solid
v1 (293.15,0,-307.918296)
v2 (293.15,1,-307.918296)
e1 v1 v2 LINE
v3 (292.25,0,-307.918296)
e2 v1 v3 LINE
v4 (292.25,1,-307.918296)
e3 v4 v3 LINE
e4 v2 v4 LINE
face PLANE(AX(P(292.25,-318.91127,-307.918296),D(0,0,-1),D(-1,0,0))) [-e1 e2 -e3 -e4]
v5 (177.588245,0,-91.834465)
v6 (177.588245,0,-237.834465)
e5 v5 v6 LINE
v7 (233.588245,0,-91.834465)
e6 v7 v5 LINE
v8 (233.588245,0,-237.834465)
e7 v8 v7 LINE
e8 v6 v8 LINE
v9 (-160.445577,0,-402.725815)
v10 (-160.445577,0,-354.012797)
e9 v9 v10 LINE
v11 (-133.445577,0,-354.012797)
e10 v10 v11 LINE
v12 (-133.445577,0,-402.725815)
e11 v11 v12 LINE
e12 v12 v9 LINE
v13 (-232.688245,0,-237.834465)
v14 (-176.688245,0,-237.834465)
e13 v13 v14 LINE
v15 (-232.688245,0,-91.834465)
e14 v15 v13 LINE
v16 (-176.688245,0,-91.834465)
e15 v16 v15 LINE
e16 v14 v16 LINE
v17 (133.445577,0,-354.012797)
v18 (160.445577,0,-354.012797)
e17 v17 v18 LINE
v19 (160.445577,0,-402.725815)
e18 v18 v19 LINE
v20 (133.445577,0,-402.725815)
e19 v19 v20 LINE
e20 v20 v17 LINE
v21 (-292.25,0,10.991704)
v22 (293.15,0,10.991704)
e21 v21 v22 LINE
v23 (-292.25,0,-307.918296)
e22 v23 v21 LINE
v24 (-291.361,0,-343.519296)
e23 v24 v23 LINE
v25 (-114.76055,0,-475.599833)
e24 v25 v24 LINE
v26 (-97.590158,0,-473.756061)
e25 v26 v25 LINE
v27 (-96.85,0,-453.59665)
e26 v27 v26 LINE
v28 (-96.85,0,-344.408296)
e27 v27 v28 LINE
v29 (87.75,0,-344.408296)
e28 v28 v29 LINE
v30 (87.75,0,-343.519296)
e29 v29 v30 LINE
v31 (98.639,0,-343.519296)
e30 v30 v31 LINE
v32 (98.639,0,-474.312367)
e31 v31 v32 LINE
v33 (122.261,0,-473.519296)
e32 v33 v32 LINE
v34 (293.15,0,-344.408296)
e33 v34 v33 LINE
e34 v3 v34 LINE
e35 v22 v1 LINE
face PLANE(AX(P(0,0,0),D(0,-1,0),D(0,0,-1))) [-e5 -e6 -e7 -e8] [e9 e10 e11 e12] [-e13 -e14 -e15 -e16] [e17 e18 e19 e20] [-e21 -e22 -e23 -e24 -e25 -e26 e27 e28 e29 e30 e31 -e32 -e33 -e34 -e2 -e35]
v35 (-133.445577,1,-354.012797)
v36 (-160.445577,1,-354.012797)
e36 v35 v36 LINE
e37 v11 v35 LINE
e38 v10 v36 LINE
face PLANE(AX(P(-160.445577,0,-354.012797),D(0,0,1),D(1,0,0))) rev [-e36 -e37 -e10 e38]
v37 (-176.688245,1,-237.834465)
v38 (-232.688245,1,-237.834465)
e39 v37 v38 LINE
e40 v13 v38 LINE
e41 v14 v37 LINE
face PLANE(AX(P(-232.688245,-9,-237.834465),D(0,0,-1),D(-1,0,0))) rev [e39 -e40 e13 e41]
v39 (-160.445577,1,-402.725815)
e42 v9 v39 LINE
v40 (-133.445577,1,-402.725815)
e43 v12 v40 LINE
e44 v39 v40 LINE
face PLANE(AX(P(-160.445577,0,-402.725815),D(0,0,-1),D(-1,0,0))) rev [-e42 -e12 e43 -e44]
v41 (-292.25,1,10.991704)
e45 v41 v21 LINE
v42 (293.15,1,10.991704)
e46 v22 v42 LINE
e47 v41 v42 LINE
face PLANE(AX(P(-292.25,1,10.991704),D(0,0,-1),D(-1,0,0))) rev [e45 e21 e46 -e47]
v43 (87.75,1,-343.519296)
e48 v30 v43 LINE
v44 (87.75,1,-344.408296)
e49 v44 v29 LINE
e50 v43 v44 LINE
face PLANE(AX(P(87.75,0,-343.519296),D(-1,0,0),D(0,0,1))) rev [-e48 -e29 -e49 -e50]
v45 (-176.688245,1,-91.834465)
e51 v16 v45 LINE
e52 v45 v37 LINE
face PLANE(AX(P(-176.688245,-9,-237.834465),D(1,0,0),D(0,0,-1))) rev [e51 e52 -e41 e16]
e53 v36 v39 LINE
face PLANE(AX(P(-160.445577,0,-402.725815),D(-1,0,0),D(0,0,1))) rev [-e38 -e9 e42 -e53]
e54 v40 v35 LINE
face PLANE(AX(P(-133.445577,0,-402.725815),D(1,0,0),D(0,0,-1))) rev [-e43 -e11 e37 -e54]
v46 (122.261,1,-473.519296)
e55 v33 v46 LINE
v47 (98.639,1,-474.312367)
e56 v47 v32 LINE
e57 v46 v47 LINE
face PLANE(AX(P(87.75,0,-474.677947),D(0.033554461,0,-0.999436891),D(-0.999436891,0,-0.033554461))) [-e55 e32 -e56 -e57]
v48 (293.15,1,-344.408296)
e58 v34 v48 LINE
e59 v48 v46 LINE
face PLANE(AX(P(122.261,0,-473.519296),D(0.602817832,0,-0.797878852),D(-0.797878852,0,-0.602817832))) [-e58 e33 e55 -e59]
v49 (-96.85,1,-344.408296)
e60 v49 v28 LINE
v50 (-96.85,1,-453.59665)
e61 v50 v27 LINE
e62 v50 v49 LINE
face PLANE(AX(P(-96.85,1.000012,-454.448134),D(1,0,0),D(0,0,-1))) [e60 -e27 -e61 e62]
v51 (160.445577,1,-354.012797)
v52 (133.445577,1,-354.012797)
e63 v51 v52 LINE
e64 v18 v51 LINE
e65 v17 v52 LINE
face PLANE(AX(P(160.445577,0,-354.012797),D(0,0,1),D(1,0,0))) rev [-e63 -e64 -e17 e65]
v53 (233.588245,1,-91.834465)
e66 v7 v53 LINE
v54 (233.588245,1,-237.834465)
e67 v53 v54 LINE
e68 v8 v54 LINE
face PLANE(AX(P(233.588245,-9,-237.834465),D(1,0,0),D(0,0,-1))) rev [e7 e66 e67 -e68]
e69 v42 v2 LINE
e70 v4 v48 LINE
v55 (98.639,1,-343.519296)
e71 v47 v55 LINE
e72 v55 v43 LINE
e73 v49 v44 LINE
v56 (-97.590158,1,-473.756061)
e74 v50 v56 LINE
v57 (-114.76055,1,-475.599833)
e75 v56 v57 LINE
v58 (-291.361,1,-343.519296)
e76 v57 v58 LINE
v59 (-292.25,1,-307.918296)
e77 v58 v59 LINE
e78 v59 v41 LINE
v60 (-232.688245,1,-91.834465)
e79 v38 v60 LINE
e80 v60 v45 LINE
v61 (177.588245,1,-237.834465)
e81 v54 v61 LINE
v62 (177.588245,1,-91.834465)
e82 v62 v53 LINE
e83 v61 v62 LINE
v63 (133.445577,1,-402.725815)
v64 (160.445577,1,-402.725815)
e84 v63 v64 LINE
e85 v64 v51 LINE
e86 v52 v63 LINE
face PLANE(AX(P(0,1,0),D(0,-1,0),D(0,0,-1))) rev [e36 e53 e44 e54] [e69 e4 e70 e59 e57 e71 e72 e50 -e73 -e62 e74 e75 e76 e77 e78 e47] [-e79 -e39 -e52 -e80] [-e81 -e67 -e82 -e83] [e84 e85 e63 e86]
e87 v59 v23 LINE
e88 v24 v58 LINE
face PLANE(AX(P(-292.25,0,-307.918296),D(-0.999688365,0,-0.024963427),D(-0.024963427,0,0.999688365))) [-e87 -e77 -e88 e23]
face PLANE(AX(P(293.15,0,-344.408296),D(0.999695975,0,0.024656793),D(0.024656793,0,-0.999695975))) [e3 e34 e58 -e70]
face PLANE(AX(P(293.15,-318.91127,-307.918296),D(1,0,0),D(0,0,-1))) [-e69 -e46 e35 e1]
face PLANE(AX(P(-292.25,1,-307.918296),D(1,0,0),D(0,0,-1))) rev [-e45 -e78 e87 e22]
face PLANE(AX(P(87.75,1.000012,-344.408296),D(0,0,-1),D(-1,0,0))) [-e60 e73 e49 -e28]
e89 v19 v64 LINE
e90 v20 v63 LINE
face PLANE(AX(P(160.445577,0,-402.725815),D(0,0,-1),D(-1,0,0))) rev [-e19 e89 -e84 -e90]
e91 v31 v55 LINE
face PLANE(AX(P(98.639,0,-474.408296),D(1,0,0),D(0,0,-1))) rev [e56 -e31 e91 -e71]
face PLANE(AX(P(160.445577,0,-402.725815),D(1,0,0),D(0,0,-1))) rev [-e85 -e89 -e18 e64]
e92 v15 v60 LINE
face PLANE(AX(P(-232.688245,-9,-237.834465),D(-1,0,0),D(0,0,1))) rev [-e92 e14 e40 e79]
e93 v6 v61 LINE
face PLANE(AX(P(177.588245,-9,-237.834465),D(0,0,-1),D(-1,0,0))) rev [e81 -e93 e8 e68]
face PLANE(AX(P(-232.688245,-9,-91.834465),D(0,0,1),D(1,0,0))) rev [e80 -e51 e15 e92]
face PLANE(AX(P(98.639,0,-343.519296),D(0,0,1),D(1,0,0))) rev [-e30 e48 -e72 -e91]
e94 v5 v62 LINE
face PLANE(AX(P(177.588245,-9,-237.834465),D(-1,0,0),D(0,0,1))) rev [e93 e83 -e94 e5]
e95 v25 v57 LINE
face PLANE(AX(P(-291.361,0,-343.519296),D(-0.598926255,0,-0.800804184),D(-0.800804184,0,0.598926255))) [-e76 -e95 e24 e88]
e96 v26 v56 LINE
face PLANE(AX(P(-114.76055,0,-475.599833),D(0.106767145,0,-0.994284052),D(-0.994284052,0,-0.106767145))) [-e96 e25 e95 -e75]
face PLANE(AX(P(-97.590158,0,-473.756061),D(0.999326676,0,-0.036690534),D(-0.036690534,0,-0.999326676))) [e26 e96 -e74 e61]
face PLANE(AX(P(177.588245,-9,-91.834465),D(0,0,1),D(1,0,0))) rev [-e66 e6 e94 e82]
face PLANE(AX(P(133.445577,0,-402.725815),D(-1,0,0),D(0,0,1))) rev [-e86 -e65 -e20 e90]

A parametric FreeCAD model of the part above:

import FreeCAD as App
import Part
import Sketcher

V = App.Vector
Q = App.Units.Quantity


def add_polygon(sketch, points):
    """Adds a closed chain of lines whose ends are joined by coincident constraints."""
    first, n = sketch.GeometryCount, len(points)
    for a, b in zip(points, points[1:] + points[:1]):
        sketch.addGeometry(Part.LineSegment(App.Vector(*a, 0), App.Vector(*b, 0)), False)
    for i in range(n):
        sketch.addConstraint(Sketcher.Constraint("Coincident", first + i, 2, first + (i + 1) % n, 1))

doc = App.newDocument("Part")
body = doc.addObject("PartDesign::Body", "Body")

# Sketch on XZ plane
sketch1 = body.newObject("Sketcher::SketchObject", "Sketch")
sketch1.AttachmentSupport = (doc.getObject("XZ_Plane"), [""])
sketch1.MapMode = "FlatFace"
add_polygon(sketch1, [(-292, -308), (-292, 11), (292, 11), (292, -308), (0, -531)])  # lines 0-4
sketch1.addConstraint([
    Sketcher.Constraint("Vertical", 0),
    Sketcher.Constraint("Horizontal", 1),
    Sketcher.Constraint("Vertical", 2),
    Sketcher.Constraint("Symmetric", 2, 2, 4, 2, -2),
    Sketcher.Constraint("PointOnObject", 3, 2, -2),
    Sketcher.Constraint("DistanceX", 1, 1, 1, 2, Q("584.5 mm")),
    Sketcher.Constraint("DistanceY", 0, 1, 0, 2, Q("318.91 mm")),
    Sketcher.Constraint("DistanceY", 3, 2, -1, 1, Q("531.403591 mm")),
    Sketcher.Constraint("Distance", 3, Q("367.907243 mm")),
])
pad1 = body.newObject("PartDesign::Pad", "Pad")
pad1.Profile = sketch1
pad1.Length = 1
pad1.Reversed = True

# Sketch on XZ plane
sketch2 = body.newObject("Sketcher::SketchObject", "Sketch001")
sketch2.AttachmentSupport = (doc.getObject("XZ_Plane"), [""])
sketch2.MapMode = "FlatFace"
sketch2.AttachmentOffset = App.Placement(V(0, 0, -1), App.Rotation())
add_polygon(sketch2, [(-233, -238), (-233, -92), (-177, -92), (-177, -238)])  # lines 0-3
add_polygon(sketch2, [(178, -238), (178, -92), (234, -92), (234, -238)])  # lines 4-7
sketch2.addConstraint([
    Sketcher.Constraint("Vertical", 0),
    Sketcher.Constraint("Horizontal", 1),
    Sketcher.Constraint("Vertical", 2),
    Sketcher.Constraint("Horizontal", 3),
    Sketcher.Constraint("Vertical", 4),
    Sketcher.Constraint("Horizontal", 5),
    Sketcher.Constraint("Vertical", 6),
    Sketcher.Constraint("Horizontal", 7),
    Sketcher.Constraint("Horizontal", 1, 2, 4, 2),
    Sketcher.Constraint("Horizontal", 3, 2, 6, 2),
    Sketcher.Constraint("Equal", 3, 5),
    Sketcher.Constraint("DistanceX", 1, 1, 1, 2, Q("56 mm")),
    Sketcher.Constraint("DistanceY", 0, 1, 0, 2, Q("146 mm")),
    Sketcher.Constraint("DistanceX", 1, 2, 4, 2, Q("354.27649 mm")),
    Sketcher.Constraint("DistanceX", 0, 2, -1, 1, Q("232.688245 mm")),
    Sketcher.Constraint("DistanceY", 0, 2, -1, 1, Q("91.834465 mm")),
])
pocket1 = body.newObject("PartDesign::Pocket", "Pocket")
pocket1.Profile = sketch2
pocket1.Length = 10
pocket1.Reversed = True

# Sketch on XZ plane
sketch3 = body.newObject("Sketcher::SketchObject", "Sketch002")
sketch3.AttachmentSupport = (doc.getObject("XZ_Plane"), [""])
sketch3.MapMode = "FlatFace"
sketch3.AttachmentOffset = App.Placement(V(0, 0, -1), App.Rotation())
add_polygon(sketch3, [(-183, -548), (-183, -474), (141, -474), (141, -548)])  # lines 0-3
sketch3.addConstraint([
    Sketcher.Constraint("Vertical", 0),
    Sketcher.Constraint("Horizontal", 1),
    Sketcher.Constraint("Vertical", 2),
    Sketcher.Constraint("Horizontal", 3),
    Sketcher.Constraint("DistanceY", 0, 1, 0, 2, Q("73.78487 mm")),
    Sketcher.Constraint("DistanceX", 0, 2, -1, 1, Q("182.814199 mm")),
    Sketcher.Constraint("DistanceX", 1, 1, 1, 2, Q("323.526326 mm")),
    Sketcher.Constraint("DistanceY", 0, 2, -1, 1, Q("474.408296 mm")),
])
pocket2 = body.newObject("PartDesign::Pocket", "Pocket001")
pocket2.Profile = sketch3
pocket2.Type = "ThroughAll"
pocket2.Midplane = True

# Sketch on XZ plane
sketch4 = body.newObject("Sketcher::SketchObject", "Sketch003")
sketch4.AttachmentSupport = (doc.getObject("XZ_Plane"), [""])
sketch4.MapMode = "FlatFace"
sketch4.AttachmentOffset = App.Placement(V(0, 0, -1), App.Rotation())
add_polygon(sketch4, [(292.2, -307.9), (292.2, 11), (293.1, 11), (293.1, -307.9)])  # lines 0-3
sketch4.addConstraint([
    Sketcher.Constraint("Vertical", 0),
    Sketcher.Constraint("Horizontal", 1),
    Sketcher.Constraint("Vertical", 2),
    Sketcher.Constraint("Horizontal", 3),
    Sketcher.Constraint("DistanceX", 1, 1, 1, 2, Q("0.9 mm")),
    Sketcher.Constraint("DistanceY", 0, 1, 0, 2, Q("318.91 mm")),
    Sketcher.Constraint("DistanceX", -1, 1, 0, 2, Q("292.25 mm")),
    Sketcher.Constraint("DistanceY", -1, 1, 0, 2, Q("10.991704 mm")),
])
pad2 = body.newObject("PartDesign::Pad", "Pad001")
pad2.Profile = sketch4
pad2.Length = 1

# Sketch on XZ plane
sketch5 = body.newObject("Sketcher::SketchObject", "Sketch004")
sketch5.AttachmentSupport = (doc.getObject("XZ_Plane"), [""])
sketch5.MapMode = "FlatFace"
sketch5.AttachmentOffset = App.Placement(V(0, 0, -1), App.Rotation())
add_polygon(sketch5, [(-97, -454), (-97, -344), (88, -344), (88, -454)])  # lines 0-3
sketch5.addConstraint([
    Sketcher.Constraint("Vertical", 0),
    Sketcher.Constraint("Horizontal", 1),
    Sketcher.Constraint("Vertical", 2),
    Sketcher.Constraint("Horizontal", 3),
    Sketcher.Constraint("DistanceX", 1, 1, 1, 2, Q("184.6 mm")),
    Sketcher.Constraint("DistanceX", 0, 2, -1, 1, Q("96.85 mm")),
    Sketcher.Constraint("DistanceY", 0, 1, 0, 2, Q("110.039838 mm")),
    Sketcher.Constraint("DistanceY", 0, 2, -1, 1, Q("344.408296 mm")),
])
pocket3 = body.newObject("PartDesign::Pocket", "Pocket002")
pocket3.Profile = sketch5
pocket3.Type = "ThroughAll"
pocket3.Midplane = True

# Sketch on XZ plane
sketch6 = body.newObject("Sketcher::SketchObject", "Sketch005")
sketch6.AttachmentSupport = (doc.getObject("XZ_Plane"), [""])
sketch6.MapMode = "FlatFace"
sketch6.AttachmentOffset = App.Placement(V(0, 0, -1), App.Rotation())
add_polygon(sketch6, [(-160, -403), (-160, -354), (-133, -354), (-133, -403)])  # lines 0-3
add_polygon(sketch6, [(133, -403), (133, -354), (160, -354), (160, -403)])  # lines 4-7
sketch6.addConstraint([
    Sketcher.Constraint("Vertical", 0),
    Sketcher.Constraint("Horizontal", 1),
    Sketcher.Constraint("Vertical", 2),
    Sketcher.Constraint("Horizontal", 3),
    Sketcher.Constraint("Vertical", 4),
    Sketcher.Constraint("Horizontal", 5),
    Sketcher.Constraint("Vertical", 6),
    Sketcher.Constraint("Horizontal", 7),
    Sketcher.Constraint("Symmetric", 1, 2, 4, 2, -2),
    Sketcher.Constraint("Symmetric", 3, 2, 6, 2, -2),
    Sketcher.Constraint("DistanceX", 1, 1, 1, 2, Q("27 mm")),
    Sketcher.Constraint("DistanceY", 0, 1, 0, 2, Q("48.713019 mm")),
    Sketcher.Constraint("DistanceX", 0, 2, -1, 1, Q("160.445577 mm")),
    Sketcher.Constraint("DistanceY", 0, 2, -1, 1, Q("354.012797 mm")),
])
pocket4 = body.newObject("PartDesign::Pocket", "Pocket003")
pocket4.Profile = sketch6
pocket4.Type = "ThroughAll"
pocket4.Midplane = True

# Sketch on XZ plane
sketch7 = body.newObject("Sketcher::SketchObject", "Sketch006")
sketch7.AttachmentSupport = (doc.getObject("XZ_Plane"), [""])
sketch7.MapMode = "FlatFace"
sketch7.AttachmentOffset = App.Placement(V(0, 0, -1), App.Rotation())
add_polygon(sketch7, [(-114, -495), (-114, -454), (154, -454), (154, -495)])  # lines 0-3
sketch7.addConstraint([
    Sketcher.Constraint("Vertical", 0),
    Sketcher.Constraint("Horizontal", 1),
    Sketcher.Constraint("Vertical", 2),
    Sketcher.Constraint("Horizontal", 3),
    Sketcher.Constraint("DistanceX", 1, 1, 1, 2, Q("268.184865 mm")),
    Sketcher.Constraint("DistanceY", 0, 1, 0, 2, Q("40.991987 mm")),
    Sketcher.Constraint("DistanceY", 0, 2, -1, 1, Q("453.59665 mm")),
    Sketcher.Constraint("DistanceX", -1, 1, 1, 2, Q("153.757111 mm")),
])
pocket5 = body.newObject("PartDesign::Pocket", "Pocket004")
pocket5.Profile = sketch7
pocket5.Type = "ThroughAll"
pocket5.Midplane = True

# Sketch on XZ plane
sketch8 = body.newObject("Sketcher::SketchObject", "Sketch007")
sketch8.AttachmentSupport = (doc.getObject("XZ_Plane"), [""])
sketch8.MapMode = "FlatFace"
sketch8.AttachmentOffset = App.Placement(V(0, 0, -1), App.Rotation())
add_polygon(sketch8, [(-291.4, -343.5), (-292.2, -307.9), (-101.7, -453.6), (-96.8, -453.6), (-97.6, -473.8), (-114.8, -475.6)])  # lines 0-5
add_polygon(sketch8, [(87.8, -474.7), (87.8, -453.6), (101.7, -453.6), (292.2, -307.9), (293.1, -344.4), (122.3, -473.5)])  # lines 6-11
sketch8.addConstraint([
    Sketcher.Constraint("Horizontal", 2),
    Sketcher.Constraint("Vertical", 6),
    Sketcher.Constraint("Horizontal", 7),
    Sketcher.Constraint("Symmetric", 1, 2, 7, 2, -2),
    Sketcher.Constraint("Symmetric", 0, 2, 8, 2, -2),
    Sketcher.Constraint("DistanceX", 2, 2, 9, 2, Q("390 mm")),
    Sketcher.Constraint("DistanceX", 0, 2, 2, 2, Q("195.4 mm")),
    Sketcher.Constraint("DistanceX", 2, 2, 6, 2, Q("184.6 mm")),
    Sketcher.Constraint("DistanceX", 6, 2, 8, 2, Q("204.5 mm")),
    Sketcher.Constraint("DistanceY", 9, 2, 8, 2, Q("36.49 mm")),
    Sketcher.Constraint("DistanceX", 5, 2, -1, 1, Q("291.361 mm")),
    Sketcher.Constraint("DistanceX", -1, 1, 10, 2, Q("122.261 mm")),
    Sketcher.Constraint("DistanceY", 5, 2, 0, 2, Q("35.601 mm")),
    Sketcher.Constraint("DistanceY", 10, 2, 9, 2, Q("129.111 mm")),
    Sketcher.Constraint("Distance", 4, Q("17.269101 mm")),
    Sketcher.Constraint("Distance", 5, Q("220.528881 mm")),
    Sketcher.Constraint("DistanceX", 2, 1, 2, 2, Q("4.897537 mm")),
    Sketcher.Constraint("DistanceY", 6, 1, 6, 2, Q("21.081296 mm")),
    Sketcher.Constraint("DistanceY", 1, 2, -1, 1, Q("453.59665 mm")),
    Sketcher.Constraint("DistanceY", 3, 2, -1, 1, Q("473.756061 mm")),
    Sketcher.Constraint("DistanceX", 4, 2, -1, 1, Q("114.76055 mm")),
    Sketcher.Constraint("DistanceX", 1, 2, 3, 2, Q("4.157379 mm")),
])
pad3 = body.newObject("PartDesign::Pad", "Pad002")
pad3.Profile = sketch8
pad3.Length = 1

# Sketch on XZ plane
sketch9 = body.newObject("Sketcher::SketchObject", "Sketch008")
sketch9.AttachmentSupport = (doc.getObject("XZ_Plane"), [""])
sketch9.MapMode = "FlatFace"
sketch9.AttachmentOffset = App.Placement(V(0, 0, -1), App.Rotation())
add_polygon(sketch9, [(99, -474), (88, -475), (88, -344), (99, -344)])  # lines 0-3
sketch9.addConstraint([
    Sketcher.Constraint("Vertical", 1),
    Sketcher.Constraint("Horizontal", 2),
    Sketcher.Constraint("Vertical", 3),
    Sketcher.Constraint("DistanceX", 2, 1, 2, 2, Q("10.889 mm")),
    Sketcher.Constraint("DistanceY", 3, 2, 3, 1, Q("130.889 mm")),
    Sketcher.Constraint("DistanceX", -1, 1, 0, 2, Q("87.75 mm")),
    Sketcher.Constraint("DistanceY", 1, 1, 1, 2, Q("131.15865 mm")),
    Sketcher.Constraint("DistanceY", 0, 2, -1, 1, Q("474.677947 mm")),
])
pocket6 = body.newObject("PartDesign::Pocket", "Pocket005")
pocket6.Profile = sketch9
pocket6.Type = "ThroughAll"
pocket6.Midplane = True

doc.recompute()
